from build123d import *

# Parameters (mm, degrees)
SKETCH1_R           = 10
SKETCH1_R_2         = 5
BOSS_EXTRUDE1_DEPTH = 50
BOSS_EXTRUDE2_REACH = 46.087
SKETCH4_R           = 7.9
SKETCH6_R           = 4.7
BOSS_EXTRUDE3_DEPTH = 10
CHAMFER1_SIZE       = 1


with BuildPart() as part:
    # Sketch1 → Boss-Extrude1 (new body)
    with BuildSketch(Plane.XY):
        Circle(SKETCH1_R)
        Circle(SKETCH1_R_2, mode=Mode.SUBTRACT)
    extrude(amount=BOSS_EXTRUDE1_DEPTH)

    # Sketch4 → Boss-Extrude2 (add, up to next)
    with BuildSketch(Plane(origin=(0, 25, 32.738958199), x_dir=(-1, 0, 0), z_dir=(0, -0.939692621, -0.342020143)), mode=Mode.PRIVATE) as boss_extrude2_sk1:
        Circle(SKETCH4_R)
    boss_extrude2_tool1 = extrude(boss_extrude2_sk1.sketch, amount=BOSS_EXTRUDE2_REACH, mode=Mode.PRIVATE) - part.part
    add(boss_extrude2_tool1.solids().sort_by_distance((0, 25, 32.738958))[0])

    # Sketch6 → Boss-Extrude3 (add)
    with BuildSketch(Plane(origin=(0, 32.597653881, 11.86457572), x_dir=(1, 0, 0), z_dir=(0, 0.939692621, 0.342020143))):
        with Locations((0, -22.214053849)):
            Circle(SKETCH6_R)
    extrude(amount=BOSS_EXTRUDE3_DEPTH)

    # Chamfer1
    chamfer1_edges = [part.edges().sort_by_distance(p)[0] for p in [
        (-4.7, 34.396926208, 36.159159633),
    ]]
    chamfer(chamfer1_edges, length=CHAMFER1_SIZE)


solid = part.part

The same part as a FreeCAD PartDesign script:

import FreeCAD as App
import Part
import Sketcher


def edges_at(feature, points):
    """Names of the edges that pass closest to the given points."""
    edges = feature.Shape.Edges
    near = lambda p: min(range(len(edges)), key=lambda i: edges[i].distToShape(Part.Vertex(*p))[0])
    return sorted({f"Edge{near(p) + 1}" for p in points})

doc = App.newDocument("Part")
body = doc.addObject("PartDesign::Body", "Body")

# Sketch on XY plane
sketch1 = body.newObject("Sketcher::SketchObject", "Sketch")
sketch1.AttachmentSupport = (doc.getObject("XY_Plane"), [""])
sketch1.MapMode = "FlatFace"
sketch1.addGeometry([
    Part.Circle(App.Vector(0, 0, 0), App.Vector(0, 0, 1), 10),
    Part.Circle(App.Vector(0, 0, 0), App.Vector(0, 0, 1), 5),
], False)
sketch1.addConstraint([
    Sketcher.Constraint("Coincident", 0, 3, -1, 1),
    Sketcher.Constraint("Coincident", 1, 3, -1, 1),
    Sketcher.Constraint("Diameter", 0, 20.0),
    Sketcher.Constraint("Diameter", 1, 10.0),
])
pad1 = body.newObject("PartDesign::Pad", "Pad")
pad1.Profile = sketch1
pad1.Length = 50

# Sketch on an angled plane
sketch2 = body.newObject("Sketcher::SketchObject", "Sketch001")
sketch2.Placement = App.Placement(App.Vector(0, 25, 32.738958), App.Rotation(App.Vector(-1, 0, 0), App.Vector(0, 0.342020143, -0.939692621), App.Vector(0, -0.939692621, -0.342020143), "ZXY"))
sketch2.addGeometry(Part.Circle(App.Vector(0, 0, 0), App.Vector(0, 0, 1), 8), False)
sketch2.addConstraint([
    Sketcher.Constraint("Coincident", 0, 3, -1, 1),
    Sketcher.Constraint("Diameter", 0, 15.8),
])
pad2 = body.newObject("PartDesign::Pad", "Pad001")
pad2.Profile = sketch2
pad2.Type = "UpToFirst"

# Sketch on an angled plane
sketch3 = body.newObject("Sketcher::SketchObject", "Sketch002")
sketch3.Placement = App.Placement(App.Vector(0, 32.597654, 11.864576), App.Rotation(App.Vector(1, 0, 0), App.Vector(0, 0.342020143, -0.939692621), App.Vector(0, 0.939692621, 0.342020143), "ZXY"))
sketch3.addGeometry(Part.Circle(App.Vector(0, -22.2, 0), App.Vector(0, 0, 1), 4.7), False)
sketch3.addConstraint([
    Sketcher.Constraint("PointOnObject", 0, 3, -2),
    Sketcher.Constraint("Diameter", 0, 9.4),
    Sketcher.Constraint("DistanceY", 0, 3, -1, 1, 22.214054),
])
pad3 = body.newObject("PartDesign::Pad", "Pad002")
pad3.Profile = sketch3
pad3.Length = 10
doc.recompute()

chamfer = body.newObject("PartDesign::Chamfer", "Chamfer")
chamfer.Base = (pad3, edges_at(pad3, [(-4.7, 34.397, 36.159)]))
chamfer.Size = 1

doc.recompute()
